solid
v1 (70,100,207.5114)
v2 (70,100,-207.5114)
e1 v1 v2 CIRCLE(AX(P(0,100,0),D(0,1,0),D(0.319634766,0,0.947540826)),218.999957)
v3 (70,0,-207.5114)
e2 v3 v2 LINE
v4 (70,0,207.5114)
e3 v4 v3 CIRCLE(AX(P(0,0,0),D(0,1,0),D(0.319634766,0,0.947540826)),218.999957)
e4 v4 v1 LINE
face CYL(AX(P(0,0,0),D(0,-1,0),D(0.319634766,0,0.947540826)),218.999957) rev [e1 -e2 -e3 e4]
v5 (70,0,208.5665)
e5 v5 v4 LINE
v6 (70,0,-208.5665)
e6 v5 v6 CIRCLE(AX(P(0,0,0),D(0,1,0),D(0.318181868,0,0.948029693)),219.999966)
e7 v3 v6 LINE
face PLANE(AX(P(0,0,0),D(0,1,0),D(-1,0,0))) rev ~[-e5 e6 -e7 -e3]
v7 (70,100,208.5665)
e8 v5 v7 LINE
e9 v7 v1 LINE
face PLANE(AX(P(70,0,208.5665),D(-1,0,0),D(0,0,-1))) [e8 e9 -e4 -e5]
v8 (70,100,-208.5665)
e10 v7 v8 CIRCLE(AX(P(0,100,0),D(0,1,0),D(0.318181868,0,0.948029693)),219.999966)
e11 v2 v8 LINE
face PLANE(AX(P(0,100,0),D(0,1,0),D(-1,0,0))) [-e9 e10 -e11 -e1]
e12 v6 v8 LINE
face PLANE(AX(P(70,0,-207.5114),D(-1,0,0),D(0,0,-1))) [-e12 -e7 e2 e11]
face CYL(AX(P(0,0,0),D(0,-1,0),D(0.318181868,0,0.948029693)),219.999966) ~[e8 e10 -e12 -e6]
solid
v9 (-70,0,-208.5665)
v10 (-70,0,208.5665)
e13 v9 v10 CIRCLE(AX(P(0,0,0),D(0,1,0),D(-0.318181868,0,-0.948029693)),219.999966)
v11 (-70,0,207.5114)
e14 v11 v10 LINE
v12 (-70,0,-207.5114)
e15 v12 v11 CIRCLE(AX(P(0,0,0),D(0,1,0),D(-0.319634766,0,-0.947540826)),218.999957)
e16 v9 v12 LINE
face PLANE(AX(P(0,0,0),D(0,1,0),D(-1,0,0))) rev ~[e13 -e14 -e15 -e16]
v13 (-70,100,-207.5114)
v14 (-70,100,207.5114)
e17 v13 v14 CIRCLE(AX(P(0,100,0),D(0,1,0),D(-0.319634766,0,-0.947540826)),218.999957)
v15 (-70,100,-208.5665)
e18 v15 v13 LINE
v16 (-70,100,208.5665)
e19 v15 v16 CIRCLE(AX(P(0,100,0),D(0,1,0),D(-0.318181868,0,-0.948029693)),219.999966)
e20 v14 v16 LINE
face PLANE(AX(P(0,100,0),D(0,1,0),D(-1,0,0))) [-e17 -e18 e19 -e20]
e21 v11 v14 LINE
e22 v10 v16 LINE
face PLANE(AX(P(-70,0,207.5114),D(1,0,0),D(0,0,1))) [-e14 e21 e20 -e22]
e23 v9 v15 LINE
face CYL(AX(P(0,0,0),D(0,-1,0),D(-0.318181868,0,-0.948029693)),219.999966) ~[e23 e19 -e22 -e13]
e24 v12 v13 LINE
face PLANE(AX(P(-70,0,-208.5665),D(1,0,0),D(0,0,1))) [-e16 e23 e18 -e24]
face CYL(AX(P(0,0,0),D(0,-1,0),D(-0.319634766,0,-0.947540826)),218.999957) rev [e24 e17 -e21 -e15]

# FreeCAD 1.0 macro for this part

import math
import FreeCAD as App
import Part
import Sketcher

V = App.Vector

doc = App.newDocument("Part")
body = doc.addObject("PartDesign::Body", "Body")
body.AllowCompound = True

# Sketch on XZ plane
sketch1 = body.newObject("Sketcher::SketchObject", "Sketch")
sketch1.AttachmentSupport = (doc.getObject("XZ_Plane"), [""])
sketch1.MapMode = "FlatFace"
sketch1.addGeometry([
    Part.ArcOfCircle(Part.Circle(V(0, 0, 0), V(0, 0, 1), 219), math.radians(-71), math.radians(71)),  # 0
    Part.LineSegment(V(70, 207.5, 0), V(70, 208.6, 0)),  # 1
    Part.ArcOfCircle(Part.Circle(V(0, 0, 0), V(0, 0, 1), 220), math.radians(-71), math.radians(71)),  # 2
    Part.LineSegment(V(70, -208.6, 0), V(70, -207.5, 0)),  # 3
    Part.ArcOfCircle(Part.Circle(V(0, 0, 0), V(0, 0, 1), 219), math.radians(109), math.radians(251)),  # 4
    Part.LineSegment(V(-70, -207.5, 0), V(-70, -208.6, 0)),  # 5
    Part.ArcOfCircle(Part.Circle(V(0, 0, 0), V(0, 0, 1), 220), math.radians(109), math.radians(251)),  # 6
    Part.LineSegment(V(-70, 208.6, 0), V(-70, 207.5, 0)),  # 7
], False)
sketch1.addConstraint([
    Sketcher.Constraint("Coincident", 0, 2, 1, 1),
    Sketcher.Constraint("Coincident", 1, 2, 2, 2),
    Sketcher.Constraint("Coincident", 2, 1, 3, 1),
    Sketcher.Constraint("Coincident", 3, 2, 0, 1),
    Sketcher.Constraint("Coincident", 4, 2, 5, 1),
    Sketcher.Constraint("Coincident", 5, 2, 6, 2),
    Sketcher.Constraint("Coincident", 6, 1, 7, 1),
    Sketcher.Constraint("Coincident", 7, 2, 4, 1),
    Sketcher.Constraint("Vertical", 1),
    Sketcher.Constraint("Vertical", 3),
    Sketcher.Constraint("Vertical", 5),
    Sketcher.Constraint("Vertical", 7),
    Sketcher.Constraint("Coincident", 0, 3, -1, 1),
    Sketcher.Constraint("Coincident", 2, 3, -1, 1),
    Sketcher.Constraint("Coincident", 4, 3, -1, 1),
    Sketcher.Constraint("Coincident", 6, 3, -1, 1),
    Sketcher.Constraint("Equal", 0, 4),
    Sketcher.Constraint("Equal", 2, 6),
    Sketcher.Constraint("Horizontal", 3, 2, 4, 2),
    Sketcher.Constraint("Horizontal", 1, 2, 6, 1),
    Sketcher.Constraint("Vertical", 1, 2, 2, 1),
    Sketcher.Constraint("Radius", 0, 219.0),
    Sketcher.Constraint("Radius", 2, 220.0),
    Sketcher.Constraint("DistanceX", 4, 2, 3, 2, 140.0),
])
pad1 = body.newObject("PartDesign::Pad", "Pad")
pad1.Profile = sketch1
pad1.Length = 100
pad1.Reversed = True

doc.recompute()
